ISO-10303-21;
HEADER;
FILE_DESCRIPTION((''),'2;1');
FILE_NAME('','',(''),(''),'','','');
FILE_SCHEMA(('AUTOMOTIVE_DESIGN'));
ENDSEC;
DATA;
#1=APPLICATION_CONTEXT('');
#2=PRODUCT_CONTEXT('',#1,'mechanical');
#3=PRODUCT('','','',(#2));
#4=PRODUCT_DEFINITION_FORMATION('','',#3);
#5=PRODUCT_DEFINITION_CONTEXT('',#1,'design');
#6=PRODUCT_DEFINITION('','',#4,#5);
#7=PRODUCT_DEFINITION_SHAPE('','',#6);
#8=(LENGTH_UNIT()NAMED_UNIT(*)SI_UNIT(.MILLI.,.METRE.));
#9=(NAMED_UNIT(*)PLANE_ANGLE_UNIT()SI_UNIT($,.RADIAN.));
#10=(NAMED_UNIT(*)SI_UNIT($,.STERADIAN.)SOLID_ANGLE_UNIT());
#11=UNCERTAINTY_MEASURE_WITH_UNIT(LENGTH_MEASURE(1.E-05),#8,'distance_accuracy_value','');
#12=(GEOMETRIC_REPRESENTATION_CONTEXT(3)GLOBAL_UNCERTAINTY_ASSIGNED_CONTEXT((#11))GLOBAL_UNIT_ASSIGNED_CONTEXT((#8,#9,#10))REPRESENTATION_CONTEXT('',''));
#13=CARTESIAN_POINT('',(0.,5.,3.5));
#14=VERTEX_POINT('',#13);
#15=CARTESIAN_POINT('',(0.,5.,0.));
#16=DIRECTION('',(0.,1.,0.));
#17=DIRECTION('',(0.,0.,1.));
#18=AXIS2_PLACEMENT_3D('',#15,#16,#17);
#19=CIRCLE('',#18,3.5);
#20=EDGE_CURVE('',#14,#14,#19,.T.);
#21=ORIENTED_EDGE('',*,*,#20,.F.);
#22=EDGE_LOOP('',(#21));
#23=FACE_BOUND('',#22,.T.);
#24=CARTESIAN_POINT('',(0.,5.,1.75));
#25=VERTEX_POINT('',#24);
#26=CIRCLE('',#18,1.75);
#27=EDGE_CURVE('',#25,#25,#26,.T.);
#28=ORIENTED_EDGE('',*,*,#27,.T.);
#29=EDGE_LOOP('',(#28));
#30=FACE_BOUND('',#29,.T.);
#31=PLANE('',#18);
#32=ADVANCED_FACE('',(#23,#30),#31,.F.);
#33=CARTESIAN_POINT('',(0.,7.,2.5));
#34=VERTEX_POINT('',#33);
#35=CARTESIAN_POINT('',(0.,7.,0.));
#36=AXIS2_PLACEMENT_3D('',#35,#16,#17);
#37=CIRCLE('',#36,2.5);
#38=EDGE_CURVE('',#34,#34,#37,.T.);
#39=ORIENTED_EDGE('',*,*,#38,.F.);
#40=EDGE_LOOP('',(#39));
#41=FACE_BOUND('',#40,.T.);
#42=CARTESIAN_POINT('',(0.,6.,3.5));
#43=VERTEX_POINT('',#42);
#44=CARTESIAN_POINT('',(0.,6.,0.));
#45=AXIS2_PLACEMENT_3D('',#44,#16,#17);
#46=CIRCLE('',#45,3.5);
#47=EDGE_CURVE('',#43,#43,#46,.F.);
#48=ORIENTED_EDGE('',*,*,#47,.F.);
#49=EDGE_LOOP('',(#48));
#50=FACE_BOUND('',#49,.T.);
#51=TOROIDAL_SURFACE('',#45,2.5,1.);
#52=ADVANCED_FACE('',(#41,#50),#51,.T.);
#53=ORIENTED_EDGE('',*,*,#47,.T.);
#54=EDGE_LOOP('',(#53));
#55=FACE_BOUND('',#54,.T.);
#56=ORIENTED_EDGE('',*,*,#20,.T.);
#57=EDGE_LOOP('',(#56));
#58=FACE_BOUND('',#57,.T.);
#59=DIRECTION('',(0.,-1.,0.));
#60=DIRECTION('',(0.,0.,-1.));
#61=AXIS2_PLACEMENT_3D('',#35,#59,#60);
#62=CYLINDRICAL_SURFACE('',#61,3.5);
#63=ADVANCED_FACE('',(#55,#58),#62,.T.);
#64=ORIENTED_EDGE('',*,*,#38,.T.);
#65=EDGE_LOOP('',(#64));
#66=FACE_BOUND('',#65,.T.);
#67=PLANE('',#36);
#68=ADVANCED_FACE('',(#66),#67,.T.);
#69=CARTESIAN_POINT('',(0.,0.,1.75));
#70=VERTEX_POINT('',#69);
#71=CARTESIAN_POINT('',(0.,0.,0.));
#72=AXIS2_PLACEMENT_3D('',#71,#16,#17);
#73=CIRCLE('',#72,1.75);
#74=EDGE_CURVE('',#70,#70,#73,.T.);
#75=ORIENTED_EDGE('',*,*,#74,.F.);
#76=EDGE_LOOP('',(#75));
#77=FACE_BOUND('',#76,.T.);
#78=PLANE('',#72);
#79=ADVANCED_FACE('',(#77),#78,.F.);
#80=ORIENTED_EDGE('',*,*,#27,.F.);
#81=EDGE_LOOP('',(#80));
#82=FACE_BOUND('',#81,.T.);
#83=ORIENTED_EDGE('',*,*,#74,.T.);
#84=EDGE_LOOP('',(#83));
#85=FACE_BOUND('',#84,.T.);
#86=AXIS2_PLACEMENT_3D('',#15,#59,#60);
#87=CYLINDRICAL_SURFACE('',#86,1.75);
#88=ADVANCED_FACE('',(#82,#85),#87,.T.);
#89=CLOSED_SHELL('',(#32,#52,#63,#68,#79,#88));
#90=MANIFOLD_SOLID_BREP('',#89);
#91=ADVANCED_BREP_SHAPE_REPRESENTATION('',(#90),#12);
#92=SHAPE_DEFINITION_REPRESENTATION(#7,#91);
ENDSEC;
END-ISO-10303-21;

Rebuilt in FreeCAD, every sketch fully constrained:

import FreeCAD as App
import Part
import Sketcher


def edges_at(feature, points):
    """Names of the edges that pass closest to the given points."""
    edges = feature.Shape.Edges
    near = lambda p: min(range(len(edges)), key=lambda i: edges[i].distToShape(Part.Vertex(*p))[0])
    return sorted({f"Edge{near(p) + 1}" for p in points})

doc = App.newDocument("Part")
body = doc.addObject("PartDesign::Body", "Body")

# Sketch on XZ plane
sketch1 = body.newObject("Sketcher::SketchObject", "Sketch")
sketch1.AttachmentSupport = (doc.getObject("XZ_Plane"), [""])
sketch1.MapMode = "FlatFace"
sketch1.addGeometry(Part.Circle(App.Vector(0, 0, 0), App.Vector(0, 0, 1), 1.8), False)
sketch1.addConstraint(Sketcher.Constraint("Coincident", 0, 3, -1, 1))
sketch1.addConstraint(Sketcher.Constraint("Diameter", 0, 3.5))
pad1 = body.newObject("PartDesign::Pad", "Pad")
pad1.Profile = sketch1
pad1.Length = 5
pad1.Reversed = True

# Sketch on XZ plane
sketch2 = body.newObject("Sketcher::SketchObject", "Sketch001")
sketch2.AttachmentSupport = (doc.getObject("XZ_Plane"), [""])
sketch2.MapMode = "FlatFace"
sketch2.AttachmentOffset = App.Placement(App.Vector(0, 0, -5), App.Rotation())
sketch2.addGeometry(Part.Circle(App.Vector(0, 0, 0), App.Vector(0, 0, 1), 3.5), False)
sketch2.addConstraint(Sketcher.Constraint("Coincident", 0, 3, -1, 1))
sketch2.addConstraint(Sketcher.Constraint("Diameter", 0, 7.0))
pad2 = body.newObject("PartDesign::Pad", "Pad001")
pad2.Profile = sketch2
pad2.Length = 2
pad2.Reversed = True
doc.recompute()

fillet = body.newObject("PartDesign::Fillet", "Fillet")
fillet.Base = (pad2, edges_at(pad2, [(0, 7, -3.5)]))
fillet.Radius = 1

doc.recompute()
